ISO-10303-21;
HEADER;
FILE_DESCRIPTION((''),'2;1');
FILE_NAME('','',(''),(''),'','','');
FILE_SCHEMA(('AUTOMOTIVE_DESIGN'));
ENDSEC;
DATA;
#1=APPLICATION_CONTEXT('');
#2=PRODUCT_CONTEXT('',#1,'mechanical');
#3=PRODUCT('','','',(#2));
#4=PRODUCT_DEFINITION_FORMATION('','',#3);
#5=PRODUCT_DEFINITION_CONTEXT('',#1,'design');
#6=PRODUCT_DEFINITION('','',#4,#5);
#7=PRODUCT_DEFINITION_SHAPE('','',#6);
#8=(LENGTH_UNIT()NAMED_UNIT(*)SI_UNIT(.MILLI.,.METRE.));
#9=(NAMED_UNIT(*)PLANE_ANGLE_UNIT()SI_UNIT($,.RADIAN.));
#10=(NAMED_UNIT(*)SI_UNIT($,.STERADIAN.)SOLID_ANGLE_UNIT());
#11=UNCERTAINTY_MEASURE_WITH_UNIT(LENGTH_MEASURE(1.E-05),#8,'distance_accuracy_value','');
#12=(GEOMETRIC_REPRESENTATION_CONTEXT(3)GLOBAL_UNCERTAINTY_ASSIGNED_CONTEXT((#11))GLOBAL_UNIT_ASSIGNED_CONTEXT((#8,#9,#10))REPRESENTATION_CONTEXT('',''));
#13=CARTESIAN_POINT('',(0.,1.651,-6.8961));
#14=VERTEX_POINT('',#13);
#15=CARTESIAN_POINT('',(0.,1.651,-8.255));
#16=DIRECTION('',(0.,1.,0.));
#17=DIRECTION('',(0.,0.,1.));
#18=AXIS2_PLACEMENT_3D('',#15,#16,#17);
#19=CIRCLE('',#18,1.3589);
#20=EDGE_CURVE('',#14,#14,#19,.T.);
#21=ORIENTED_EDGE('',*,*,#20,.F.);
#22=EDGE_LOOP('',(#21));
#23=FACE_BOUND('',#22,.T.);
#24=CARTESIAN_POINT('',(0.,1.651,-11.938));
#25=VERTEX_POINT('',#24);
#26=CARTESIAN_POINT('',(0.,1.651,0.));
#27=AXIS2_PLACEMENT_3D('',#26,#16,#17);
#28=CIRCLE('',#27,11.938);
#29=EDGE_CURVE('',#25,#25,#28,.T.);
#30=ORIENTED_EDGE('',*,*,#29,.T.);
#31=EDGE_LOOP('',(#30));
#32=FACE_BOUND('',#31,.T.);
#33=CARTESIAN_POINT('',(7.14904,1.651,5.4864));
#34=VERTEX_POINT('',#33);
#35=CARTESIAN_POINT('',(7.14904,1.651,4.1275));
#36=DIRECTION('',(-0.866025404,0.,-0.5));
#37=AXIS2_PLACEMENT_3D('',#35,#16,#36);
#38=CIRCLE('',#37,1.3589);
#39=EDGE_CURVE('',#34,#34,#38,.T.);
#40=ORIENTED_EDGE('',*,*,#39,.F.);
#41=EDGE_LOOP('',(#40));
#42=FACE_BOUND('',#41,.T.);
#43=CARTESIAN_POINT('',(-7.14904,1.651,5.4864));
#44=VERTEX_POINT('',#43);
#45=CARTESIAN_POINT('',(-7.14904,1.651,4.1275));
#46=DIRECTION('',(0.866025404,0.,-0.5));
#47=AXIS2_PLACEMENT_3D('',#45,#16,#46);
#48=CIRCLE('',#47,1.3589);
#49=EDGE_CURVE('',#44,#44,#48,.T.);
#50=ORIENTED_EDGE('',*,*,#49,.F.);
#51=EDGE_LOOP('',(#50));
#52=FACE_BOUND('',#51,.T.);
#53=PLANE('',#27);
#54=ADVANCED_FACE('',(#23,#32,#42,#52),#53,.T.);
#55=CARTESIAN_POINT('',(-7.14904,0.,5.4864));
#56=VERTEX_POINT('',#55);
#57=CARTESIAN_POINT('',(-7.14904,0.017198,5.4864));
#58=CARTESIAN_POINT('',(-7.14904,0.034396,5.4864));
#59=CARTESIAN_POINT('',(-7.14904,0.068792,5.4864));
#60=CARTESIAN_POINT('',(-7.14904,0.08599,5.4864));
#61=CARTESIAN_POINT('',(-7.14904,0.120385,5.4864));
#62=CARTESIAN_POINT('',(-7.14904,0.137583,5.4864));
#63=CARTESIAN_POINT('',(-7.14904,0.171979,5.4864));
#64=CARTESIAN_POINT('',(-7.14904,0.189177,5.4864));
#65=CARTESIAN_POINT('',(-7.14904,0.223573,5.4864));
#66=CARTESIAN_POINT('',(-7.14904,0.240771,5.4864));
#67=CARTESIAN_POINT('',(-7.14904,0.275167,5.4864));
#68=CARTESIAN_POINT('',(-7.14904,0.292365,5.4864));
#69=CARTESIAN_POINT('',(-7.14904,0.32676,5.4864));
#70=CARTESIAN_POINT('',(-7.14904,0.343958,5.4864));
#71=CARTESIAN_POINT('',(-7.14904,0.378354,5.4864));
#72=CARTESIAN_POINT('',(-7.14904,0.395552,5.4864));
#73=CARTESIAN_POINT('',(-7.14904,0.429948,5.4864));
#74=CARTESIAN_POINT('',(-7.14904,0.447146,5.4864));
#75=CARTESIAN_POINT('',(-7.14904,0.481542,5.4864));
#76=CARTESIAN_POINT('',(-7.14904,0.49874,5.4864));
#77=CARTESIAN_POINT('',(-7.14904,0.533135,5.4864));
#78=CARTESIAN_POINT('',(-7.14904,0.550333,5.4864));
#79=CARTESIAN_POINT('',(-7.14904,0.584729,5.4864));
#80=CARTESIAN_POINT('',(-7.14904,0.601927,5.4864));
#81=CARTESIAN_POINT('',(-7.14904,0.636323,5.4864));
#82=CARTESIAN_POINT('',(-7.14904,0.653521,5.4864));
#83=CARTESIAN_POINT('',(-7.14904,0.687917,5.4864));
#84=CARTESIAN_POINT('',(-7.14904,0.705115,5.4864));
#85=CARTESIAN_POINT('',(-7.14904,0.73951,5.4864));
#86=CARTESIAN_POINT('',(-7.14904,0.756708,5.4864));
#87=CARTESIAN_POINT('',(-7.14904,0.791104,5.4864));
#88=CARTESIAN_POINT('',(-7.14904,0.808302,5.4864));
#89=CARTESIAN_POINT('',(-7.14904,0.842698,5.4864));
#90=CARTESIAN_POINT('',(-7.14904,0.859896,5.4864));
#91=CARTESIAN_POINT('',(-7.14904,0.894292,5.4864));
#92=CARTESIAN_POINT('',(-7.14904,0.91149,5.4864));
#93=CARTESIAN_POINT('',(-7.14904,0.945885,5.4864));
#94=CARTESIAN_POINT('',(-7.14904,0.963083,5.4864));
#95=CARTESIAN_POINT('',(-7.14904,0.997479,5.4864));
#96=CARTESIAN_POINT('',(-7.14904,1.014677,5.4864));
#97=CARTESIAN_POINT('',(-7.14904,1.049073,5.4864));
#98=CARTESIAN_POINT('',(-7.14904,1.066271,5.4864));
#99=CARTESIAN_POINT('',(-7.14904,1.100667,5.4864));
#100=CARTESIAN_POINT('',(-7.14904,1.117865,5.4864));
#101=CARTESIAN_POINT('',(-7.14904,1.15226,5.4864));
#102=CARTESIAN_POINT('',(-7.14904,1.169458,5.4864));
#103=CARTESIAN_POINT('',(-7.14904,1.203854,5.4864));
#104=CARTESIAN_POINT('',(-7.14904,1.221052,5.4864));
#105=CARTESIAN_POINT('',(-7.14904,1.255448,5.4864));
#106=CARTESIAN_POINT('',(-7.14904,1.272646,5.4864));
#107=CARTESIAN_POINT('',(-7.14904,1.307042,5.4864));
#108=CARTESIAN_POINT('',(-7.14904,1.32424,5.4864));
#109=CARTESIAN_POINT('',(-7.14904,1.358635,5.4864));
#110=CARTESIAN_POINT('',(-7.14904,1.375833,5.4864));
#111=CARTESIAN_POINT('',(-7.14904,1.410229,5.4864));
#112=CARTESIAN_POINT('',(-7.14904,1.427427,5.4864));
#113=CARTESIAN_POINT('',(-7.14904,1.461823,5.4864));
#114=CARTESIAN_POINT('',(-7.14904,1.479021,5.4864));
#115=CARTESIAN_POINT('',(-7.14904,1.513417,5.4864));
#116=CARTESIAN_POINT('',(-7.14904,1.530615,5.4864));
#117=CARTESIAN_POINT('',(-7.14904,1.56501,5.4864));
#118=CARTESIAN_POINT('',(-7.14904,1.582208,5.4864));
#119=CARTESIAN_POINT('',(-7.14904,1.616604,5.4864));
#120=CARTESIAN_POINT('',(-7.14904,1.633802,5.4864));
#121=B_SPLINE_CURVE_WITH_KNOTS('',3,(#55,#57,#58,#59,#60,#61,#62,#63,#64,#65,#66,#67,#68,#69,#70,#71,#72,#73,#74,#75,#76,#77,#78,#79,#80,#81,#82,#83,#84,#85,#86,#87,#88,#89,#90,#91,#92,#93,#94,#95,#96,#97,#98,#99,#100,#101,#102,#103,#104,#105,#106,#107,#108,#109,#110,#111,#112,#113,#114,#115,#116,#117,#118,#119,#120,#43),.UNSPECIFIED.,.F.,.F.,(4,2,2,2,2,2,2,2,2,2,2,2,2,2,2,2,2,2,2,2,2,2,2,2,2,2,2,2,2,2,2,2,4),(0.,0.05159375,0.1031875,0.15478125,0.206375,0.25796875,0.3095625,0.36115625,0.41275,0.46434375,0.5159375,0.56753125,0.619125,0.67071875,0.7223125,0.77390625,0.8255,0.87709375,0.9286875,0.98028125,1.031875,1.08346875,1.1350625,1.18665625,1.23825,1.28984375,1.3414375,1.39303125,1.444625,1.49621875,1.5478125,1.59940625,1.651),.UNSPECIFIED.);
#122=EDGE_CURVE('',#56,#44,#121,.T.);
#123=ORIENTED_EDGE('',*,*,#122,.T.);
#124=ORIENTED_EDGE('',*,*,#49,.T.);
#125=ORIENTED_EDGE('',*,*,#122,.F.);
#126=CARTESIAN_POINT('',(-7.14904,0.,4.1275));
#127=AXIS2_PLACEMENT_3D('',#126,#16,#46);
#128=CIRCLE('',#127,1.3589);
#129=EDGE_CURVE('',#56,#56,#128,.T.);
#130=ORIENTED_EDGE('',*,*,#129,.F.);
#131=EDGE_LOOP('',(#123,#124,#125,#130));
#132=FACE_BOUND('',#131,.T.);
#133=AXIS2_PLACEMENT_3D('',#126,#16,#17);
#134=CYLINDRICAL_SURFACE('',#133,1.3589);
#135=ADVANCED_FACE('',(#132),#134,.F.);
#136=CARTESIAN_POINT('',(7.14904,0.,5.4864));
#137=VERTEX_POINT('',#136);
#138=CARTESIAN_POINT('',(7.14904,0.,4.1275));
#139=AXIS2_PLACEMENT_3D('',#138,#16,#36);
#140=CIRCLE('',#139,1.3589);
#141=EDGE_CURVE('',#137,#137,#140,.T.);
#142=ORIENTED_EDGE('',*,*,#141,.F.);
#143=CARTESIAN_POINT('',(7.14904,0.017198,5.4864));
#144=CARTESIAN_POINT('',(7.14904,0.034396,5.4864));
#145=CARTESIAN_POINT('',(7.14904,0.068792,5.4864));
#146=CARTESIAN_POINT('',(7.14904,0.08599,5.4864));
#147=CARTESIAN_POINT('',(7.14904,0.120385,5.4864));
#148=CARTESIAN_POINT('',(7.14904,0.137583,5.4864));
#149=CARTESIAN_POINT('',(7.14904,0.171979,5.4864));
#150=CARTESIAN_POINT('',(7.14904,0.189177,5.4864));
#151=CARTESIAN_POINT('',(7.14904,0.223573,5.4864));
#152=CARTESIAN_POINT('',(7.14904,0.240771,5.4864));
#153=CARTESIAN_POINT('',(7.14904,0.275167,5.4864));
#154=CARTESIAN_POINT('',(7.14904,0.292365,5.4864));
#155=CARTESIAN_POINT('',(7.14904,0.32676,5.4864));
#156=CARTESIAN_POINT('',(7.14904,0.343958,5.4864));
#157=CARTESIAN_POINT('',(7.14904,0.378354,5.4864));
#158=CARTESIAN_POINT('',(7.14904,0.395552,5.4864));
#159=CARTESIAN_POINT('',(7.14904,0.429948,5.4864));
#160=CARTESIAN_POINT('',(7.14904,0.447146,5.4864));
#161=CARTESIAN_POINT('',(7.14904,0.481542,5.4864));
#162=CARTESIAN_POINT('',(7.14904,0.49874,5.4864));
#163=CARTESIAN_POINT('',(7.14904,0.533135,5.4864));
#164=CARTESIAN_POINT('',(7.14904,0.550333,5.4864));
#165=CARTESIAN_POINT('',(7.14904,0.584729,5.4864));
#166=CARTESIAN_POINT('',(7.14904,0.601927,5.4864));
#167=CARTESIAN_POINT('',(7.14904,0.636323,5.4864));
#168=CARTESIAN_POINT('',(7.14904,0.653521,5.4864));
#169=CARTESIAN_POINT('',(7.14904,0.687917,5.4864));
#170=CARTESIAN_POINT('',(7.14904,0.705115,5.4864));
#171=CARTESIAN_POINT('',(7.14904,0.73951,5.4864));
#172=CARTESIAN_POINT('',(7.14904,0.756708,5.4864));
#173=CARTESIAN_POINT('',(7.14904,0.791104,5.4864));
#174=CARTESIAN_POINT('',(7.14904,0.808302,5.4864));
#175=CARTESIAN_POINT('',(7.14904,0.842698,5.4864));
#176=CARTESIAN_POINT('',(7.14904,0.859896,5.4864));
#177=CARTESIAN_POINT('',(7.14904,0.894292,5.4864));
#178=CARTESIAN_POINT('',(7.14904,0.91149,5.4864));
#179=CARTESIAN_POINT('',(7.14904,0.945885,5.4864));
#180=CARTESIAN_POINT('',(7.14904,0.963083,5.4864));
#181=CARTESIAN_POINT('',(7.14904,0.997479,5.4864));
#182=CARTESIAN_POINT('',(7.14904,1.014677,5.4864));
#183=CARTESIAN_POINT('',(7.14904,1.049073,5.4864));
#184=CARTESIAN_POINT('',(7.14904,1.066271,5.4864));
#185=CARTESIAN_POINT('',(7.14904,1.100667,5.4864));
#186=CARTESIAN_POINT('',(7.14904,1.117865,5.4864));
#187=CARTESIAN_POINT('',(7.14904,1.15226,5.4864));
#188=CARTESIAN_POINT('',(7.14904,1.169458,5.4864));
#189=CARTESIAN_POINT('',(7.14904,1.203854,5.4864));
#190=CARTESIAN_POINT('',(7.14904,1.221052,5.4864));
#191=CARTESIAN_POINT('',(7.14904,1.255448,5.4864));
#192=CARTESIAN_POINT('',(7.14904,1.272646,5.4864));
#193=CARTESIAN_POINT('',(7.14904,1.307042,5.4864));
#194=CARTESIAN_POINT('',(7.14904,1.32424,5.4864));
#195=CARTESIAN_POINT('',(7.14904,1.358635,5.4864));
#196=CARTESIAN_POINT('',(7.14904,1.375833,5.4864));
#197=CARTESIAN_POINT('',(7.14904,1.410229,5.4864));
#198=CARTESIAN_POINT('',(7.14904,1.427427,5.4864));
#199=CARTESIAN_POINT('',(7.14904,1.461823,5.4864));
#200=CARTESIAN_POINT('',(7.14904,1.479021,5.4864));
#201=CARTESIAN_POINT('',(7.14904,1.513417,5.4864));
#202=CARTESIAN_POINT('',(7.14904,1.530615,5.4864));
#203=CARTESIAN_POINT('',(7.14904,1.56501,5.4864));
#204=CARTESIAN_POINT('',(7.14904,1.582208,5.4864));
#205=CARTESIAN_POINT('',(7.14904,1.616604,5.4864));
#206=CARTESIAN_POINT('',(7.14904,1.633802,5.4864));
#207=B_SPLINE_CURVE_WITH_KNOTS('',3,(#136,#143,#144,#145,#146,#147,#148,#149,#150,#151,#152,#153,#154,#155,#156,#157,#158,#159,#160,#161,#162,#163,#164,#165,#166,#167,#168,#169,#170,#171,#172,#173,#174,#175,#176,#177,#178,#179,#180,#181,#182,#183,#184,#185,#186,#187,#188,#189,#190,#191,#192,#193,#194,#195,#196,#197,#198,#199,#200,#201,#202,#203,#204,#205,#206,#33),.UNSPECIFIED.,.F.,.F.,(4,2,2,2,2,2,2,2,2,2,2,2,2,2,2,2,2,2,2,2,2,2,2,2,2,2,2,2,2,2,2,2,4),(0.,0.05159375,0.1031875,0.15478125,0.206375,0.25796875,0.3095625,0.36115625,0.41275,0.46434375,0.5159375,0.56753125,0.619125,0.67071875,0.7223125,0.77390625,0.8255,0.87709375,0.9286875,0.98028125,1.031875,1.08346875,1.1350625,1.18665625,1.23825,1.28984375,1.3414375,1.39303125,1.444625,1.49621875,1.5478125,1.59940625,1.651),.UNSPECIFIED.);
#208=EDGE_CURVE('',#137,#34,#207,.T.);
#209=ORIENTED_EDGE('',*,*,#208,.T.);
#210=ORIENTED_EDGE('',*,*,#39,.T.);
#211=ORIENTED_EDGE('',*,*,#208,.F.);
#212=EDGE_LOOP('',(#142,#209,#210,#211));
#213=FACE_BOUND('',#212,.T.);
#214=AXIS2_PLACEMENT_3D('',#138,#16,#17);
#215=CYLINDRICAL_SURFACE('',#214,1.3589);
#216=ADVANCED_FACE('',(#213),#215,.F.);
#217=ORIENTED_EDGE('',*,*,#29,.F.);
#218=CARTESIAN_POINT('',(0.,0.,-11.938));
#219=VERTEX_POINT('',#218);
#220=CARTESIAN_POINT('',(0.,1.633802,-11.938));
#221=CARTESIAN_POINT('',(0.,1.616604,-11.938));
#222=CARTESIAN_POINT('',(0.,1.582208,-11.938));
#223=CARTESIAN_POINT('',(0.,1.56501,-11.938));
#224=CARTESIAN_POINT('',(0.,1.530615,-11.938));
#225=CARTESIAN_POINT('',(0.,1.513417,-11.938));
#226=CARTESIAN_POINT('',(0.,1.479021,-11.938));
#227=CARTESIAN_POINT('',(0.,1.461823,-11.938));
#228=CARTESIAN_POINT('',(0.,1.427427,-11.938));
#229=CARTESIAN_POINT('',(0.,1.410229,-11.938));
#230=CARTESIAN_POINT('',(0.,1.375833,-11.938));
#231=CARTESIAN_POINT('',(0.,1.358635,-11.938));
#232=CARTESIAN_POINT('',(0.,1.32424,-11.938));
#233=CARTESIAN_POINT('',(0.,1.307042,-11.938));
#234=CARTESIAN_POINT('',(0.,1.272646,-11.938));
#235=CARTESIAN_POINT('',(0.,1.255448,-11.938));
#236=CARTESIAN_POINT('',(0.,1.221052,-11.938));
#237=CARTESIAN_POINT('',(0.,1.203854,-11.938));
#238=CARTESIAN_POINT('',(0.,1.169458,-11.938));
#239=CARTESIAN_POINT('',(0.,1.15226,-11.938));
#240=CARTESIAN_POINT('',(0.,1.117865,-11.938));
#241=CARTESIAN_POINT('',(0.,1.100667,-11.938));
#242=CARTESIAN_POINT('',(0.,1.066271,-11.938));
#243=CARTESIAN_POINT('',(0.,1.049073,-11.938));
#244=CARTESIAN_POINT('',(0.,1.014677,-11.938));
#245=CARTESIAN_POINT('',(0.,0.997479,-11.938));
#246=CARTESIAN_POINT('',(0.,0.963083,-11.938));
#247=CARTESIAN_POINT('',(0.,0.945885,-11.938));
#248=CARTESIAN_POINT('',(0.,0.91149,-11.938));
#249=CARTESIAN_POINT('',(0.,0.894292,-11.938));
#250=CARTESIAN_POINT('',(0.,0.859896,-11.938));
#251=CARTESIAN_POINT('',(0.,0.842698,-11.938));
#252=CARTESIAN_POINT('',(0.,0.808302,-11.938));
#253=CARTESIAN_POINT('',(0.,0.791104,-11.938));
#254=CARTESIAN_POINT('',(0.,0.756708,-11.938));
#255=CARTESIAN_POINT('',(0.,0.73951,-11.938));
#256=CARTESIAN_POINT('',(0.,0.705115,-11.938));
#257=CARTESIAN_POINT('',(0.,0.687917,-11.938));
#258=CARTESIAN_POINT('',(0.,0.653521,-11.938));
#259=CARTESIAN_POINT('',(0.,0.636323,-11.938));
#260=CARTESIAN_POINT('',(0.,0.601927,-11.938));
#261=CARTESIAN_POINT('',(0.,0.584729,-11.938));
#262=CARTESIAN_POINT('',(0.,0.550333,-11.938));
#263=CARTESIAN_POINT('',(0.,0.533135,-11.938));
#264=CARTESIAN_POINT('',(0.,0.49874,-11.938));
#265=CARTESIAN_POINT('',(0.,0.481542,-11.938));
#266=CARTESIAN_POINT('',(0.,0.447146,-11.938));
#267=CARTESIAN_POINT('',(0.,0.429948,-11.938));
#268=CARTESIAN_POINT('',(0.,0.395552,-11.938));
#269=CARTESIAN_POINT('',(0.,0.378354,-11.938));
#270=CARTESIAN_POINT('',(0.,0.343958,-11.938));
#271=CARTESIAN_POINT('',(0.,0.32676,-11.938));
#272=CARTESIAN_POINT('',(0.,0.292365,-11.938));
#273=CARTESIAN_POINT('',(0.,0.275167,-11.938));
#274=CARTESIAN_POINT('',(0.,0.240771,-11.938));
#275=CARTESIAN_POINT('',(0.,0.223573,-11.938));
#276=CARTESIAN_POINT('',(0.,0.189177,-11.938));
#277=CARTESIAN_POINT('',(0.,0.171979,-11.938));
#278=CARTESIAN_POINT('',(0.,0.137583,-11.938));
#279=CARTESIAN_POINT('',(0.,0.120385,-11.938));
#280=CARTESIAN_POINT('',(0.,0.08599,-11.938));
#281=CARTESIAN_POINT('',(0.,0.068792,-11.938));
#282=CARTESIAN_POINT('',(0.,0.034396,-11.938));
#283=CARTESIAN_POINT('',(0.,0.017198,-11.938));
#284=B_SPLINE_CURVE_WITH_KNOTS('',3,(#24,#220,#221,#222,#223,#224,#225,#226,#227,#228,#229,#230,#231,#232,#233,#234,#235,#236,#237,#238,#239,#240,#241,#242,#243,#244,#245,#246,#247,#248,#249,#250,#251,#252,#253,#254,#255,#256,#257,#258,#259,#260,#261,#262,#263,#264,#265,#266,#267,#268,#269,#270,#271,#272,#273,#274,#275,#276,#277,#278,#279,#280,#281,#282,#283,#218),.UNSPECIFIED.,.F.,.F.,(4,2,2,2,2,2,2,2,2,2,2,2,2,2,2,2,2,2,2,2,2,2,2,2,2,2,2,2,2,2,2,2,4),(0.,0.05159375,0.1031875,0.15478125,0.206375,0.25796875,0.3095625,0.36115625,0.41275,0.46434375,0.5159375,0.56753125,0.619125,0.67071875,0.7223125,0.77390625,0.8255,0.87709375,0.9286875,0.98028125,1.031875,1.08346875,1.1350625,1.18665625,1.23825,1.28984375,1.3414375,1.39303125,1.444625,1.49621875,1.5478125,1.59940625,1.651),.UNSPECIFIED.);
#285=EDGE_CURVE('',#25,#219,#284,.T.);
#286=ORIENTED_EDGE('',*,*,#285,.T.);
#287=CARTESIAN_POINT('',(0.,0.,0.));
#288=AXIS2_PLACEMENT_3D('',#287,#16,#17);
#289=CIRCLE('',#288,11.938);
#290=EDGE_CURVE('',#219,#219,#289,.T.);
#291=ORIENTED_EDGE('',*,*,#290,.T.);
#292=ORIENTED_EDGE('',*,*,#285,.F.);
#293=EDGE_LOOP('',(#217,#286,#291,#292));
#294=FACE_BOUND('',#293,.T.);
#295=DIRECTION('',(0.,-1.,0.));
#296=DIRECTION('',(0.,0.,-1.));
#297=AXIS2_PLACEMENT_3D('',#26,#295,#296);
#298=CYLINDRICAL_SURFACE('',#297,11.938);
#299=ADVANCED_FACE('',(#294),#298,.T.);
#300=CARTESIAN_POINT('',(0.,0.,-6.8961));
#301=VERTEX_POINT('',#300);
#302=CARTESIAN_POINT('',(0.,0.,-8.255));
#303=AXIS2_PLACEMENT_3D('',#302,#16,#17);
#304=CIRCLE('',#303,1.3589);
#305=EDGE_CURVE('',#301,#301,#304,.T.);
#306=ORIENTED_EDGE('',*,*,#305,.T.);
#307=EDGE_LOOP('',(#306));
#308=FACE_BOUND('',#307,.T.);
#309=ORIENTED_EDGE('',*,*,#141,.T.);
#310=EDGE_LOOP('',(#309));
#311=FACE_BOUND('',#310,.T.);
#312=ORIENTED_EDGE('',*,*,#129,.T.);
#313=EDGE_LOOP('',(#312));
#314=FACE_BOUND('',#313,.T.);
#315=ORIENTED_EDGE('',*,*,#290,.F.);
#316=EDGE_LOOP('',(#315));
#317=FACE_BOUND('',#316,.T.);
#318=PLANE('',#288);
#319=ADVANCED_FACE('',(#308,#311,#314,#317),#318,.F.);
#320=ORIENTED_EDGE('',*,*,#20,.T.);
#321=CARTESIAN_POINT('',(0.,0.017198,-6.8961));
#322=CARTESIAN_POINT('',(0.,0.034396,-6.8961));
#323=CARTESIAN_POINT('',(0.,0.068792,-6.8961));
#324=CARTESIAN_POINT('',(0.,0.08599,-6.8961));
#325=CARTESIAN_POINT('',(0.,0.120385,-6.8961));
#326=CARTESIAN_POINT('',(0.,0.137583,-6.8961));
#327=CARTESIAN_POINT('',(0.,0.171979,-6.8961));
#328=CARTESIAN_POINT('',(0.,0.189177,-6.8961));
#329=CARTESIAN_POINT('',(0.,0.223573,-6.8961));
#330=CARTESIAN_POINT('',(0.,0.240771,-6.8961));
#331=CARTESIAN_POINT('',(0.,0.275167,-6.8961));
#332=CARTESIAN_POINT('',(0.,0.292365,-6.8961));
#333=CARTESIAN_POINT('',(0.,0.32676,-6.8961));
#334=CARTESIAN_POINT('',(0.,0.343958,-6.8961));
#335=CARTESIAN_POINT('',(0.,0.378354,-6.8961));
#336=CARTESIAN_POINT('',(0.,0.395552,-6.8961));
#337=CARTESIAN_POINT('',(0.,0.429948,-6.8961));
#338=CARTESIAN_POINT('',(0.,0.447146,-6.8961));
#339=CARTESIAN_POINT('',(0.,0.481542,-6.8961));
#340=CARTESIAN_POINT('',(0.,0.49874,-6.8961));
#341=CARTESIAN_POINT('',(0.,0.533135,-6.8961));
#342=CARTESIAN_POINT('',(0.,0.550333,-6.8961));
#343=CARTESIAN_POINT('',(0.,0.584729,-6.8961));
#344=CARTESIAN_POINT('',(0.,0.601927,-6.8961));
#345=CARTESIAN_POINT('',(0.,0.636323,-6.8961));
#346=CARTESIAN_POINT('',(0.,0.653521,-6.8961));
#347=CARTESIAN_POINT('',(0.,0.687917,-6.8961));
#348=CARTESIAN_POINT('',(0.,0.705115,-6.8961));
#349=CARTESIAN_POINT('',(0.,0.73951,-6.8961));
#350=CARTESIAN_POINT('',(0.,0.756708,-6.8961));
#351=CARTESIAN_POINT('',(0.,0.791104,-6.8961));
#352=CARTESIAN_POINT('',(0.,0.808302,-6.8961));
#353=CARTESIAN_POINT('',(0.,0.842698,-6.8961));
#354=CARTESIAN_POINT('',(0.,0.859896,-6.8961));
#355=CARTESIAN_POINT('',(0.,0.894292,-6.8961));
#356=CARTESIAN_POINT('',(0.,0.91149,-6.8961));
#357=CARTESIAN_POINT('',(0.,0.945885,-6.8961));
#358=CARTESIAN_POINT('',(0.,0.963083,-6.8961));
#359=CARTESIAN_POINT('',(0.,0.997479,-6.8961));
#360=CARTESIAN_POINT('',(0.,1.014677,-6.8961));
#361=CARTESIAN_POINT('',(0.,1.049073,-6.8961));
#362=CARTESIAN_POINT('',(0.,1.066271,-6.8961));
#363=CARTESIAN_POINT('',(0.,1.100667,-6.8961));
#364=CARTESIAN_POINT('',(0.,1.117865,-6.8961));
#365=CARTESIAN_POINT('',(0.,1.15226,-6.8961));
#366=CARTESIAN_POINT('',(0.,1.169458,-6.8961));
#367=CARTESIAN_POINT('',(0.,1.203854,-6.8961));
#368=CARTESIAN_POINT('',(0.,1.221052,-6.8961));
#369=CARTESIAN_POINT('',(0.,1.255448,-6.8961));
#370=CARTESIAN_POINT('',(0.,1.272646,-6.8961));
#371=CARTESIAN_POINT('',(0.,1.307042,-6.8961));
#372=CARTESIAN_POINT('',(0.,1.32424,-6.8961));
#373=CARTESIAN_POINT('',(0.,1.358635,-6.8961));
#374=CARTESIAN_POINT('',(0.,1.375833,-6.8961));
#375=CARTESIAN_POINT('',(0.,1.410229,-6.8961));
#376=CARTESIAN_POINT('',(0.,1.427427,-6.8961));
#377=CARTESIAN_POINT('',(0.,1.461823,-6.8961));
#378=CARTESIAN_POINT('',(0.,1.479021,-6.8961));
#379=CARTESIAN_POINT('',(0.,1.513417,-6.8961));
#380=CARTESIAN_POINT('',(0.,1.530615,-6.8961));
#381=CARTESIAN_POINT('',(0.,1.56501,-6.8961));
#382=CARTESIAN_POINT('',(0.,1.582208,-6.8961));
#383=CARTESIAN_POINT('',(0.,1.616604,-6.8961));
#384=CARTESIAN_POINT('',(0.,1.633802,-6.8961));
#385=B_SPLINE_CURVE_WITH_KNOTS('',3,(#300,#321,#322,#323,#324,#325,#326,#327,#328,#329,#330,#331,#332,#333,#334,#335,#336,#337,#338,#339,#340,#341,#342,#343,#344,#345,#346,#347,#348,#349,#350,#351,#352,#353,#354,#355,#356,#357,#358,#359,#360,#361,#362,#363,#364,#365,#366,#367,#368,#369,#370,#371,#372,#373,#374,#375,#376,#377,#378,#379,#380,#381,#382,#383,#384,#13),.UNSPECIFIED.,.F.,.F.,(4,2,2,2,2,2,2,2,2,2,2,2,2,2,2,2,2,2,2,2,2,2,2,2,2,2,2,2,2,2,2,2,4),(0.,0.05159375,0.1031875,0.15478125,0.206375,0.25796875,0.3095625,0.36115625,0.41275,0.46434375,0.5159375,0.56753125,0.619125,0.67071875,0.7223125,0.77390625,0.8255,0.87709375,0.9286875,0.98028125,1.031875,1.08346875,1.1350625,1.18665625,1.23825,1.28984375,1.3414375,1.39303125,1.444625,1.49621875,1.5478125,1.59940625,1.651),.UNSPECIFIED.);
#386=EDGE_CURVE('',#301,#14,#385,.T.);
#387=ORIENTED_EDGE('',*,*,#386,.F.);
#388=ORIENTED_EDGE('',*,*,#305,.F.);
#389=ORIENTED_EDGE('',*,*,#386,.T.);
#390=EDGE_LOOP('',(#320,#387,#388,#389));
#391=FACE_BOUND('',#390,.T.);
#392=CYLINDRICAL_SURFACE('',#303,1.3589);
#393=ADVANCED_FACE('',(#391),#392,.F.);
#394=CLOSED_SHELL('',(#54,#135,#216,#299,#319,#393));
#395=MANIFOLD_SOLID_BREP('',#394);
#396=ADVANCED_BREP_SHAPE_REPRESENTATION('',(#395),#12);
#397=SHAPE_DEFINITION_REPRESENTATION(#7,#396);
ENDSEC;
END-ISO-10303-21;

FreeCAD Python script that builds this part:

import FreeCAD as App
import Part
import Sketcher

V = App.Vector
Q = App.Units.Quantity

doc = App.newDocument("Part")
body = doc.addObject("PartDesign::Body", "Body")

sketch1 = body.newObject("Sketcher::SketchObject", "Sketch")
sketch1.AttachmentSupport = (doc.getObject("XZ_Plane"), [""])
sketch1.MapMode = "FlatFace"
sketch1.addGeometry(Part.Circle(V(0, 0, 0), V(0, 0, 1), 11.938), False)
sketch1.addConstraint([
    Sketcher.Constraint("Coincident", 0, 3, -1, 1),
    Sketcher.Constraint("Diameter", 0, Q("0.94 in")),
])
pad1 = body.newObject("PartDesign::Pad", "Pad")
pad1.Profile = sketch1
pad1.Length = Q("0.065 in")
pad1.Reversed = True

sketch2 = body.newObject("Sketcher::SketchObject", "Sketch001")
sketch2.AttachmentSupport = (doc.getObject("XZ_Plane"), [""])
sketch2.MapMode = "FlatFace"
sketch2.AttachmentOffset = App.Placement(V(0, 0, -0.065 * 25.4), App.Rotation())
sketch2.addGeometry(Part.Circle(V(0, -8.255, 0), V(0, 0, 1), 1.3589), False)
sketch2.addConstraint([
    Sketcher.Constraint("PointOnObject", 0, 3, -2),
    Sketcher.Constraint("Diameter", 0, Q("0.107 in")),
    Sketcher.Constraint("DistanceY", 0, 3, -1, 1, Q("0.325 in")),
])
pocket1 = body.newObject("PartDesign::Pocket", "Pocket")
pocket1.Profile = sketch2
pocket1.Length = Q("0.065 in")
pocket1.Reversed = True
doc.recompute()

polarpattern = body.newObject("PartDesign::PolarPattern", "PolarPattern")
polarpattern.Originals = [pocket1]
polarpattern.Axis = (doc.getObject("Y_Axis"), [""])
polarpattern.Angle = 360
polarpattern.Occurrences = 3
body.Tip = polarpattern

doc.recompute()
